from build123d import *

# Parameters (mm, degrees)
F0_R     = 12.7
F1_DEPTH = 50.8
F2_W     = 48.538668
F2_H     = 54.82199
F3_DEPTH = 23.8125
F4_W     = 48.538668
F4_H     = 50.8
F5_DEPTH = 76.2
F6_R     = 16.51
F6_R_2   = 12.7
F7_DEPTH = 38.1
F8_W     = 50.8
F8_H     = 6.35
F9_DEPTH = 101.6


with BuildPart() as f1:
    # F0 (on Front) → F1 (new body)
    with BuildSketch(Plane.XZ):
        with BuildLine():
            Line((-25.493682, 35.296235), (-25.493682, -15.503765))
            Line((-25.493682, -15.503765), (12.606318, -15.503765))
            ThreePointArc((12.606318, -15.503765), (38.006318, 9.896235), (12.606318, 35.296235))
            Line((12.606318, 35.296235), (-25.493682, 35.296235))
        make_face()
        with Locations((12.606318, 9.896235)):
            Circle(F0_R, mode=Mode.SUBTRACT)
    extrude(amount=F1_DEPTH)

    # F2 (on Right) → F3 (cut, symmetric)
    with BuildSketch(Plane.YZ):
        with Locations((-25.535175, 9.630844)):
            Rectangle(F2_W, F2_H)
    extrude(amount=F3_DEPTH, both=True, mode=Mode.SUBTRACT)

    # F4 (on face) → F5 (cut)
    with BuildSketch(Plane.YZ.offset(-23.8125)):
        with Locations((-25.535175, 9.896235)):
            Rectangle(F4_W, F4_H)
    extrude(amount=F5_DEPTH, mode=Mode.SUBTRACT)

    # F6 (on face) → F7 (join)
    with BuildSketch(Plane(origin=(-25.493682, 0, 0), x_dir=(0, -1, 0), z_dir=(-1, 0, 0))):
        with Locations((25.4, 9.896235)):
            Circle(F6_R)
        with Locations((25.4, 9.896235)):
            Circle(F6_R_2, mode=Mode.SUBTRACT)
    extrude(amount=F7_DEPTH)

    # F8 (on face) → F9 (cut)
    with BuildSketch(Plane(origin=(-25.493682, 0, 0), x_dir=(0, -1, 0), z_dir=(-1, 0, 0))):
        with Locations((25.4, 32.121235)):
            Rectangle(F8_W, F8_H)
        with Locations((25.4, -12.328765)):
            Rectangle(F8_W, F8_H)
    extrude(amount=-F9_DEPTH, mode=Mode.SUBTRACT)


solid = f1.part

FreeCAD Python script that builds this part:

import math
import FreeCAD as App
import Part
import Sketcher
Q = App.Units.Quantity


def add_polygon(sketch, points):
    """Adds a closed chain of lines whose ends are joined by coincident constraints."""
    first, n = sketch.GeometryCount, len(points)
    for a, b in zip(points, points[1:] + points[:1]):
        sketch.addGeometry(Part.LineSegment(App.Vector(*a, 0), App.Vector(*b, 0)), False)
    for i in range(n):
        sketch.addConstraint(Sketcher.Constraint("Coincident", first + i, 2, first + (i + 1) % n, 1))

doc = App.newDocument("Part")
body = doc.addObject("PartDesign::Body", "Body")

# Sketch on XZ plane
sketch1 = body.newObject("Sketcher::SketchObject", "Sketch")
sketch1.AttachmentSupport = (doc.getObject("XZ_Plane"), [""])
sketch1.MapMode = "FlatFace"
sketch1.addGeometry(Part.LineSegment(App.Vector(-25, 35, 0), App.Vector(-25, -16, 0)), False)
sketch1.addGeometry(Part.LineSegment(App.Vector(-25, -16, 0), App.Vector(13, -16, 0)), False)
sketch1.addGeometry(Part.ArcOfCircle(Part.Circle(App.Vector(13, 10, 0), App.Vector(0, 0, 1), 25), math.radians(-90), math.radians(90)), False)
sketch1.addGeometry(Part.LineSegment(App.Vector(13, 35, 0), App.Vector(-25, 35, 0)), False)
sketch1.addGeometry(Part.Circle(App.Vector(13, 10, 0), App.Vector(0, 0, 1), 13), False)
sketch1.addConstraint(Sketcher.Constraint("Coincident", 0, 2, 1, 1))
sketch1.addConstraint(Sketcher.Constraint("Tangent", 1, 2, 2, 1))
sketch1.addConstraint(Sketcher.Constraint("Tangent", 2, 2, 3, 1))
sketch1.addConstraint(Sketcher.Constraint("Coincident", 3, 2, 0, 1))
sketch1.addConstraint(Sketcher.Constraint("Vertical", 0))
sketch1.addConstraint(Sketcher.Constraint("Horizontal", 1))
sketch1.addConstraint(Sketcher.Constraint("Horizontal", 3))
sketch1.addConstraint(Sketcher.Constraint("Coincident", 4, 3, 2, 3))
sketch1.addConstraint(Sketcher.Constraint("Diameter", 4, Q("1 in")))
sketch1.addConstraint(Sketcher.Constraint("Radius", 2, Q("1 in")))
sketch1.addConstraint(Sketcher.Constraint("DistanceX", 1, 1, 1, 2, Q("1.5 in")))
sketch1.addConstraint(Sketcher.Constraint("DistanceX", 0, 2, -1, 1, Q("25.493682 mm")))
sketch1.addConstraint(Sketcher.Constraint("DistanceY", -1, 1, 2, 3, Q("9.896235 mm")))
pad1 = body.newObject("PartDesign::Pad", "Pad")
pad1.Profile = sketch1
pad1.Length = Q("2 in")

# Sketch on YZ plane
sketch2 = body.newObject("Sketcher::SketchObject", "Sketch001")
sketch2.AttachmentSupport = (doc.getObject("YZ_Plane"), [""])
sketch2.MapMode = "FlatFace"
add_polygon(sketch2, [(-50, 37), (-50, -18), (-1, -18), (-1, 37)])  # lines 0-3
sketch2.addConstraint(Sketcher.Constraint("Vertical", 0))
sketch2.addConstraint(Sketcher.Constraint("Horizontal", 1))
sketch2.addConstraint(Sketcher.Constraint("Vertical", 2))
sketch2.addConstraint(Sketcher.Constraint("Horizontal", 3))
sketch2.addConstraint(Sketcher.Constraint("DistanceY", 0, 2, 0, 1, Q("54.82199 mm")))
sketch2.addConstraint(Sketcher.Constraint("DistanceX", 1, 1, 1, 2, Q("48.538668 mm")))
sketch2.addConstraint(Sketcher.Constraint("DistanceX", 0, 2, -1, 1, Q("49.804509 mm")))
sketch2.addConstraint(Sketcher.Constraint("DistanceY", 0, 2, -1, 1, Q("17.780151 mm")))
pocket1 = body.newObject("PartDesign::Pocket", "Pocket")
pocket1.Profile = sketch2
pocket1.Length = Q("1.875 in")
pocket1.Midplane = True

# Sketch on YZ plane
sketch3 = body.newObject("Sketcher::SketchObject", "Sketch002")
sketch3.AttachmentSupport = (doc.getObject("YZ_Plane"), [""])
sketch3.MapMode = "FlatFace"
sketch3.AttachmentOffset = App.Placement(App.Vector(0, 0, -0.9375 * 25.4), App.Rotation())
add_polygon(sketch3, [(-50, 35), (-50, -16), (-1, -16), (-1, 35)])  # lines 0-3
sketch3.addConstraint(Sketcher.Constraint("Vertical", 0))
sketch3.addConstraint(Sketcher.Constraint("Horizontal", 1))
sketch3.addConstraint(Sketcher.Constraint("Vertical", 2))
sketch3.addConstraint(Sketcher.Constraint("Horizontal", 3))
sketch3.addConstraint(Sketcher.Constraint("DistanceY", 0, 2, 0, 1, Q("2 in")))
sketch3.addConstraint(Sketcher.Constraint("DistanceX", 1, 1, 1, 2, Q("48.538668 mm")))
sketch3.addConstraint(Sketcher.Constraint("DistanceX", 0, 2, -1, 1, Q("49.804509 mm")))
sketch3.addConstraint(Sketcher.Constraint("DistanceY", 0, 2, -1, 1, Q("15.503765 mm")))
pocket2 = body.newObject("PartDesign::Pocket", "Pocket001")
pocket2.Profile = sketch3
pocket2.Length = Q("3 in")
pocket2.Reversed = True

# Sketch on YZ plane
sketch4 = body.newObject("Sketcher::SketchObject", "Sketch003")
sketch4.AttachmentSupport = (doc.getObject("YZ_Plane"), [""])
sketch4.MapMode = "FlatFace"
sketch4.AttachmentOffset = App.Placement(App.Vector(0, 0, -25.493682), App.Rotation())
sketch4.addGeometry(Part.Circle(App.Vector(-25, 10, 0), App.Vector(0, 0, 1), 17), False)
sketch4.addGeometry(Part.Circle(App.Vector(-25, 10, 0), App.Vector(0, 0, 1), 13), False)
sketch4.addConstraint(Sketcher.Constraint("Coincident", 1, 3, 0, 3))
sketch4.addConstraint(Sketcher.Constraint("Diameter", 1, Q("1 in")))
sketch4.addConstraint(Sketcher.Constraint("Diameter", 0, Q("1.3 in")))
sketch4.addConstraint(Sketcher.Constraint("DistanceX", 0, 3, -1, 1, Q("1 in")))
sketch4.addConstraint(Sketcher.Constraint("DistanceY", -1, 1, 0, 3, Q("9.896235 mm")))
pad2 = body.newObject("PartDesign::Pad", "Pad001")
pad2.Profile = sketch4
pad2.Length = Q("1.5 in")
pad2.Reversed = True

# Sketch on YZ plane
sketch5 = body.newObject("Sketcher::SketchObject", "Sketch004")
sketch5.AttachmentSupport = (doc.getObject("YZ_Plane"), [""])
sketch5.MapMode = "FlatFace"
sketch5.AttachmentOffset = App.Placement(App.Vector(0, 0, -25.493682), App.Rotation())
add_polygon(sketch5, [(0, 35), (0, 29), (-51, 29), (-51, 35)])  # lines 0-3
add_polygon(sketch5, [(0, -9), (0, -16), (-51, -16), (-51, -9)])  # lines 4-7
sketch5.addConstraint(Sketcher.Constraint("Vertical", 0))
sketch5.addConstraint(Sketcher.Constraint("Horizontal", 1))
sketch5.addConstraint(Sketcher.Constraint("Vertical", 2))
sketch5.addConstraint(Sketcher.Constraint("Horizontal", 3))
sketch5.addConstraint(Sketcher.Constraint("Vertical", 4))
sketch5.addConstraint(Sketcher.Constraint("Horizontal", 5))
sketch5.addConstraint(Sketcher.Constraint("Vertical", 6))
sketch5.addConstraint(Sketcher.Constraint("Horizontal", 7))
sketch5.addConstraint(Sketcher.Constraint("PointOnObject", 0, 2, -2))
sketch5.addConstraint(Sketcher.Constraint("PointOnObject", 4, 2, -2))
sketch5.addConstraint(Sketcher.Constraint("Vertical", 2, 2, 5, 2))
sketch5.addConstraint(Sketcher.Constraint("Equal", 2, 4))
sketch5.addConstraint(Sketcher.Constraint("DistanceX", 1, 2, 1, 1, Q("2 in")))
sketch5.addConstraint(Sketcher.Constraint("DistanceY", 4, 2, 3, 2, Q("2 in")))
sketch5.addConstraint(Sketcher.Constraint("DistanceY", 0, 2, 0, 1, Q("0.25 in")))
sketch5.addConstraint(Sketcher.Constraint("DistanceY", -1, 1, 0, 2, Q("28.946235 mm")))
pocket3 = body.newObject("PartDesign::Pocket", "Pocket002")
pocket3.Profile = sketch5
pocket3.Length = Q("4 in")
pocket3.Reversed = True

doc.recompute()
